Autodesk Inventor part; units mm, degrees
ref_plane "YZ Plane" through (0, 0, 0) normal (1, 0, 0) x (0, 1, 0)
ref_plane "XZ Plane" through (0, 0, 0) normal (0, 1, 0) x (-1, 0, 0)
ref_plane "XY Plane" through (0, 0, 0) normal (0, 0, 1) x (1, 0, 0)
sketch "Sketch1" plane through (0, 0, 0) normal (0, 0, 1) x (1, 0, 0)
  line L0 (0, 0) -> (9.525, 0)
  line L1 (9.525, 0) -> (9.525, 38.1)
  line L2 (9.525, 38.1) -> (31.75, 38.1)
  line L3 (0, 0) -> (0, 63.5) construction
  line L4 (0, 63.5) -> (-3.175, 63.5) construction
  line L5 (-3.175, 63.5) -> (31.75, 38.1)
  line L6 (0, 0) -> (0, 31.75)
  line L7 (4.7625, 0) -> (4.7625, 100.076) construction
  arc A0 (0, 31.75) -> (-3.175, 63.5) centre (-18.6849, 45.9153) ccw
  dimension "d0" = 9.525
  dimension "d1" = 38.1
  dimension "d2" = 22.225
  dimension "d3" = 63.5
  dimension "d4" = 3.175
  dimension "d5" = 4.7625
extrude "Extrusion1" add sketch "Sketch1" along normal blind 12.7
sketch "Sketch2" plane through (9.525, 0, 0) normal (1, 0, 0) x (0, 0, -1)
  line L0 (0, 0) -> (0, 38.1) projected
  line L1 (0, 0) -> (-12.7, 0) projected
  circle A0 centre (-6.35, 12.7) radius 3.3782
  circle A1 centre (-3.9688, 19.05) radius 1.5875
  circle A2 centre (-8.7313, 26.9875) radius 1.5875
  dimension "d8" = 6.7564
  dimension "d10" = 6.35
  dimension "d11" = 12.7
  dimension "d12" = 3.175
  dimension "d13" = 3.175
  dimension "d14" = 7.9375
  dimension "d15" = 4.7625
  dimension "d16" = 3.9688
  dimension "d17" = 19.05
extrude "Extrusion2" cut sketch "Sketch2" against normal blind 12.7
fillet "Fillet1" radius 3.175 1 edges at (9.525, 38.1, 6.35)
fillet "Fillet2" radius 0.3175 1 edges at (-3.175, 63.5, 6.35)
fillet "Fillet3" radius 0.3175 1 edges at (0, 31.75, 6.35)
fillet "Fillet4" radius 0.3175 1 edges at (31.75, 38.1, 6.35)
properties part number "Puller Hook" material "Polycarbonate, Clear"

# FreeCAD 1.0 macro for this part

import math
import FreeCAD as App
import Part
import Sketcher
Q = App.Units.Quantity


def edges_at(feature, points):
    """Names of the edges that pass closest to the given points."""
    edges = feature.Shape.Edges
    near = lambda p: min(range(len(edges)), key=lambda i: edges[i].distToShape(Part.Vertex(*p))[0])
    return sorted({f"Edge{near(p) + 1}" for p in points})

doc = App.newDocument("Part")
body = doc.addObject("PartDesign::Body", "Body")

# Sketch on XY plane
sketch1 = body.newObject("Sketcher::SketchObject", "Sketch")
sketch1.AttachmentSupport = (doc.getObject("XY_Plane"), [""])
sketch1.MapMode = "FlatFace"
sketch1.addGeometry([
    Part.LineSegment(App.Vector(0, 31.75, 0), App.Vector(0, 0, 0)),  # 0
    Part.LineSegment(App.Vector(0, 0, 0), App.Vector(9.525, 0, 0)),  # 1
    Part.LineSegment(App.Vector(9.525, 0, 0), App.Vector(9.525, 38.1, 0)),  # 2
    Part.LineSegment(App.Vector(9.525, 38.1, 0), App.Vector(31.75, 38.1, 0)),  # 3
    Part.LineSegment(App.Vector(31.75, 38.1, 0), App.Vector(-3.175, 63.5, 0)),  # 4
    Part.ArcOfCircle(Part.Circle(App.Vector(-18.6849, 45.9153, 0), App.Vector(0, 0, 1), 23.447414), math.radians(-37.166306), math.radians(48.58735)),  # 5
], False)
sketch1.addConstraint([
    Sketcher.Constraint("Coincident", 0, 2, 1, 1),
    Sketcher.Constraint("Coincident", 1, 2, 2, 1),
    Sketcher.Constraint("Coincident", 2, 2, 3, 1),
    Sketcher.Constraint("Coincident", 3, 2, 4, 1),
    Sketcher.Constraint("Coincident", 4, 2, 5, 2),
    Sketcher.Constraint("Coincident", 5, 1, 0, 1),
    Sketcher.Constraint("Vertical", 0),
    Sketcher.Constraint("Horizontal", 1),
    Sketcher.Constraint("Vertical", 2),
    Sketcher.Constraint("Horizontal", 3),
    Sketcher.Constraint("Coincident", 0, 2, -1, 1),
    Sketcher.Constraint("DistanceY", 2, 1, 2, 2, Q("1.5 in")),
    Sketcher.Constraint("DistanceY", -1, 1, 4, 2, Q("2.5 in")),
    Sketcher.Constraint("DistanceX", 1, 1, 1, 2, Q("0.375 in")),
    Sketcher.Constraint("DistanceX", 3, 1, 3, 2, Q("0.875 in")),
    Sketcher.Constraint("DistanceX", 4, 2, -1, 1, Q("0.125 in")),
    Sketcher.Constraint("DistanceY", 0, 2, 0, 1, Q("1.25 in")),
    Sketcher.Constraint("Radius", 5, Q("23.4474 mm")),
])
pad1 = body.newObject("PartDesign::Pad", "Pad")
pad1.Profile = sketch1
pad1.Length = Q("0.5 in")

# Sketch on YZ plane
sketch2 = body.newObject("Sketcher::SketchObject", "Sketch001")
sketch2.AttachmentSupport = (doc.getObject("YZ_Plane"), [""])
sketch2.MapMode = "FlatFace"
sketch2.AttachmentOffset = App.Placement(App.Vector(0, 0, 0.375 * 25.4), App.Rotation())
sketch2.addGeometry([
    Part.Circle(App.Vector(12.7, 6.35, 0), App.Vector(0, 0, 1), 3.3782),
    Part.Circle(App.Vector(19.05, 3.9688, 0), App.Vector(0, 0, 1), 1.5875),
    Part.Circle(App.Vector(26.9875, 8.7313, 0), App.Vector(0, 0, 1), 1.5875),
], False)
sketch2.addConstraint([
    Sketcher.Constraint("Equal", 1, 2),
    Sketcher.Constraint("Diameter", 0, Q("0.266 in")),
    Sketcher.Constraint("Diameter", 1, Q("0.125 in")),
    Sketcher.Constraint("DistanceX", -1, 1, 0, 3, Q("0.5 in")),
    Sketcher.Constraint("DistanceY", -1, 1, 0, 3, Q("0.25 in")),
    Sketcher.Constraint("DistanceX", -1, 1, 1, 3, Q("0.75 in")),
    Sketcher.Constraint("DistanceY", -1, 1, 1, 3, Q("0.156252 in")),
    Sketcher.Constraint("DistanceX", 1, 3, 2, 3, Q("0.3125 in")),
    Sketcher.Constraint("DistanceY", 1, 3, 2, 3, Q("0.1875 in")),
])
pocket1 = body.newObject("PartDesign::Pocket", "Pocket")
pocket1.Profile = sketch2
pocket1.Length = Q("0.5 in")
doc.recompute()

fillet = body.newObject("PartDesign::Fillet", "Fillet")
fillet.Base = (pocket1, edges_at(pocket1, [(9.525, 38.1, 6.35)]))
fillet.Radius = Q("0.125 in")
doc.recompute()

fillet2 = body.newObject("PartDesign::Fillet", "Fillet001")
fillet2.Base = (fillet, edges_at(fillet, [(-3.175, 63.5, 6.35)]))
fillet2.Radius = Q("0.0125 in")
doc.recompute()

fillet3 = body.newObject("PartDesign::Fillet", "Fillet002")
fillet3.Base = (fillet2, edges_at(fillet2, [(0, 31.75, 6.35)]))
fillet3.Radius = Q("0.0125 in")
doc.recompute()

fillet4 = body.newObject("PartDesign::Fillet", "Fillet003")
fillet4.Base = (fillet3, edges_at(fillet3, [(31.75, 38.1, 6.35)]))
fillet4.Radius = Q("0.0125 in")

doc.recompute()
